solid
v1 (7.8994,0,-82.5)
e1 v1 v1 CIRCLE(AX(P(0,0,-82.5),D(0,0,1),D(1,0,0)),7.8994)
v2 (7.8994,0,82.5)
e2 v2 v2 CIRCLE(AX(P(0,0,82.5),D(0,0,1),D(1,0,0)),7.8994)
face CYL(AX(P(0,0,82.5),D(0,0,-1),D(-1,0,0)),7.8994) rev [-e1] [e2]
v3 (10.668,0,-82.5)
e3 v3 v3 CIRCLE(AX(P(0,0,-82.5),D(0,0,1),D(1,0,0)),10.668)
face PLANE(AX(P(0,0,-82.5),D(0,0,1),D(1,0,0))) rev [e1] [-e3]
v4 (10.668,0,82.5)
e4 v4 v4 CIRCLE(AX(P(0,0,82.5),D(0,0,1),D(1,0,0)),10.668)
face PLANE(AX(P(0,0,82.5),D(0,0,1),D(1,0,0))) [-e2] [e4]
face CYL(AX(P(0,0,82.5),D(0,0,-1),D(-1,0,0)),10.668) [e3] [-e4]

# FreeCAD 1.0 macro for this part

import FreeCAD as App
import Part
import Sketcher

V = App.Vector
Q = App.Units.Quantity

doc = App.newDocument("Part")
body = doc.addObject("PartDesign::Body", "Body")

# Sketch on XY plane
sketch1 = body.newObject("Sketcher::SketchObject", "Sketch")
sketch1.AttachmentSupport = (doc.getObject("XY_Plane"), [""])
sketch1.MapMode = "FlatFace"
sketch1.addGeometry([
    Part.Circle(V(0, 0, 0), V(0, 0, 1), 10.668),
    Part.Circle(V(0, 0, 0), V(0, 0, 1), 7.8994),
], False)
sketch1.addConstraint([
    Sketcher.Constraint("Coincident", 0, 3, -1, 1),
    Sketcher.Constraint("Coincident", 1, 3, -1, 1),
    Sketcher.Constraint("Diameter", 0, Q("0.84 in")),
    Sketcher.Constraint("Diameter", 1, Q("0.622 in")),
])
pad1 = body.newObject("PartDesign::Pad", "Pad")
pad1.Profile = sketch1
pad1.Length = 165
pad1.Midplane = True

doc.recompute()
